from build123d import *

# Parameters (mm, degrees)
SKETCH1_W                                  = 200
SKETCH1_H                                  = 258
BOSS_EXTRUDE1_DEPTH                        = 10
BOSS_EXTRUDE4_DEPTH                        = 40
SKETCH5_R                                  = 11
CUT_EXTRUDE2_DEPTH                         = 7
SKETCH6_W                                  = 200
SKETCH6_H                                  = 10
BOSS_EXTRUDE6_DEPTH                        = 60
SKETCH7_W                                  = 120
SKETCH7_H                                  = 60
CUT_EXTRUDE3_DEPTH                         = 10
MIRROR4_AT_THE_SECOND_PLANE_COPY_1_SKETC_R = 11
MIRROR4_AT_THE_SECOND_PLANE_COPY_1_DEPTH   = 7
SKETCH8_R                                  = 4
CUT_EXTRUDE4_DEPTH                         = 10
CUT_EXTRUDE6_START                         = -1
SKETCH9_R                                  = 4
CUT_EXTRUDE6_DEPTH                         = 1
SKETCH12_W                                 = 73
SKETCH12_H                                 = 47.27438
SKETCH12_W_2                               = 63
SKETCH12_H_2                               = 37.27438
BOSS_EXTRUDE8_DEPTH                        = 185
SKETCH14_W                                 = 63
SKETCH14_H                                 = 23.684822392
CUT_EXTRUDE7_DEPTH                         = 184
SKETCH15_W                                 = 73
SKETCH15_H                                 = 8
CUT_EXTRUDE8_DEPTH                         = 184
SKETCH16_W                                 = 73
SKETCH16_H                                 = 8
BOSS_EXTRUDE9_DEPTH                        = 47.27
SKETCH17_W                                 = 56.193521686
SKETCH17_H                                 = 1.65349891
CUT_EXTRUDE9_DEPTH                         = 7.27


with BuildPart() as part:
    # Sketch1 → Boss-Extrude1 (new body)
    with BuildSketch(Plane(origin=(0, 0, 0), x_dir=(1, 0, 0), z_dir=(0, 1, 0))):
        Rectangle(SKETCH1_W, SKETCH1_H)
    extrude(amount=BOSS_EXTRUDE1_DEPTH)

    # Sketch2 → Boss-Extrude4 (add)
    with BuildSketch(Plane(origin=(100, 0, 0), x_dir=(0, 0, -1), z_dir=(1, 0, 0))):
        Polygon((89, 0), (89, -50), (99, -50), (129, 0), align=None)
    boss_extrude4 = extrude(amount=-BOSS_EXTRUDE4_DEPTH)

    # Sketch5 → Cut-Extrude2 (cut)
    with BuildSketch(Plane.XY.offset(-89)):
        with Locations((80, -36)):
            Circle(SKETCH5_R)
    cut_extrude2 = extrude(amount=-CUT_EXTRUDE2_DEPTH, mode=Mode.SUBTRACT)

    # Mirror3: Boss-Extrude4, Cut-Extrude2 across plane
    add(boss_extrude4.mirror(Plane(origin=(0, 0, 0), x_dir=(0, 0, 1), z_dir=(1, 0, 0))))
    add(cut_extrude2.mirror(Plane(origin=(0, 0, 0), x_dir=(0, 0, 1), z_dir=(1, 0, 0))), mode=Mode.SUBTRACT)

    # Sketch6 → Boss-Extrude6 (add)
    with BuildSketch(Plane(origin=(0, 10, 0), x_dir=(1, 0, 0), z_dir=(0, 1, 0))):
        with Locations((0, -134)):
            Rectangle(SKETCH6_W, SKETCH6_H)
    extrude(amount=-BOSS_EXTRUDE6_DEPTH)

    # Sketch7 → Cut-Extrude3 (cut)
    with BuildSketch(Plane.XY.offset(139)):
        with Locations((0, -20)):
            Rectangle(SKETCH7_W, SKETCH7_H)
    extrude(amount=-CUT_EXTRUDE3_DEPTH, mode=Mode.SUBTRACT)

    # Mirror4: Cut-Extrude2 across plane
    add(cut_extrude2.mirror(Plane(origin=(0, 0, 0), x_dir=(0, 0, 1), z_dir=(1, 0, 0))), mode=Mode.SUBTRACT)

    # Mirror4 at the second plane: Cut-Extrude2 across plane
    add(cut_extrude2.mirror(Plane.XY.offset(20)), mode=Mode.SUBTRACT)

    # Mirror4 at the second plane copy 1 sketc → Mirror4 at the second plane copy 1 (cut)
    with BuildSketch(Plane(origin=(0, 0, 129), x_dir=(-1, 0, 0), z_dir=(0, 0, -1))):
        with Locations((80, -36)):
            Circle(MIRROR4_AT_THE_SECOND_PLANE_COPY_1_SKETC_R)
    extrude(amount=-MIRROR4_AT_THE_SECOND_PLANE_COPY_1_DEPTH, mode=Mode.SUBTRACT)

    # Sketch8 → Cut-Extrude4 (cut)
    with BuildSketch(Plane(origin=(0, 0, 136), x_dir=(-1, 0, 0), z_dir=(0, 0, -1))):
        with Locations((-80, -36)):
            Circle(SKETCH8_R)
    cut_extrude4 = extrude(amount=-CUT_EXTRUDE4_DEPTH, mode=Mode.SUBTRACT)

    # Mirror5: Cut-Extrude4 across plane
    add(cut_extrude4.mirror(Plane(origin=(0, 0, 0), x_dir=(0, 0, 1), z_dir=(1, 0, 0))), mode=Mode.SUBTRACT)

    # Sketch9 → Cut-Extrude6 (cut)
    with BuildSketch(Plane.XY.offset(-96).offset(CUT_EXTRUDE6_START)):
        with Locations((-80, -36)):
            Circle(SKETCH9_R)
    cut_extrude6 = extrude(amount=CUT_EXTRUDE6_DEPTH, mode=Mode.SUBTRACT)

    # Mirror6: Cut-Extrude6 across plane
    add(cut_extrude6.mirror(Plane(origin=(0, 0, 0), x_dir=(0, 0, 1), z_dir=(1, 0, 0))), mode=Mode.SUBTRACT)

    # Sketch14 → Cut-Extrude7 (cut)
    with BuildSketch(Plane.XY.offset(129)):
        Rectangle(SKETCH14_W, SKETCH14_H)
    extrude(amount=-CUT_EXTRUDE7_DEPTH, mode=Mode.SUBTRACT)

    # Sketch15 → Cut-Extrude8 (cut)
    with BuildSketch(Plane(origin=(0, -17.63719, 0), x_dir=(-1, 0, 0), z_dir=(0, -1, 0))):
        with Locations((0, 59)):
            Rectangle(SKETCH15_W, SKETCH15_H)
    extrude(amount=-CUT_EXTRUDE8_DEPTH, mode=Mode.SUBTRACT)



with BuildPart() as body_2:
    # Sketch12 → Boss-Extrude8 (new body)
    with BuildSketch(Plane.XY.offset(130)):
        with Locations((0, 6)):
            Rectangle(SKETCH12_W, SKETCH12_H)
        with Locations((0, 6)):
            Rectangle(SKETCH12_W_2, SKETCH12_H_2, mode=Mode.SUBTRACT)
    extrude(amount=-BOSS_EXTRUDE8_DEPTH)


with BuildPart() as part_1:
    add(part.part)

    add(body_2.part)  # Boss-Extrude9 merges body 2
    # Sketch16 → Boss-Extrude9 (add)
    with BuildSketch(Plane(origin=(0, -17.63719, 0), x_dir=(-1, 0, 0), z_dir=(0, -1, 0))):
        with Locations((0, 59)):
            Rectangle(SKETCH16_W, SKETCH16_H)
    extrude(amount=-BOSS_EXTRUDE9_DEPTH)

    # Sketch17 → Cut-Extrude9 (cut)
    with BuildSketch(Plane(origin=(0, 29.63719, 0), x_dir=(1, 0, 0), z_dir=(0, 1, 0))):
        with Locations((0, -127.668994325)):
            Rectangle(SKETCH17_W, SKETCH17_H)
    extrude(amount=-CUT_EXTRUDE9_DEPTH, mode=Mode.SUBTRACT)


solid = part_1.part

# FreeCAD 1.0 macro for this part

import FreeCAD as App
import Part
import Sketcher

V = App.Vector
Q = App.Units.Quantity


def add_polygon(sketch, points):
    """Adds a closed chain of lines whose ends are joined by coincident constraints."""
    first, n = sketch.GeometryCount, len(points)
    for a, b in zip(points, points[1:] + points[:1]):
        sketch.addGeometry(Part.LineSegment(App.Vector(*a, 0), App.Vector(*b, 0)), False)
    for i in range(n):
        sketch.addConstraint(Sketcher.Constraint("Coincident", first + i, 2, first + (i + 1) % n, 1))

doc = App.newDocument("Part")
params = doc.addObject("Spreadsheet::Sheet", "Params")
for row, (alias, value) in enumerate([
    ("sketch1_width", "200 mm"),
    ("sketch1_height", "258 mm"),
    ("pad1_length", "10 mm"),
    ("sketch2_width", "50 mm"),
    ("sketch2_height", "10 mm"),
    ("sketch2_height2", "40 mm"),
    ("pad2_length", "40 mm"),
    ("sketch3_diameter", "22 mm"),
    ("pocket1_length", "7 mm"),
    ("sketch4_width", "200 mm"),
    ("sketch4_height", "10 mm"),
    ("pad3_length", "60 mm"),
    ("sketch5_width", "120 mm"),
    ("sketch5_height", "60 mm"),
    ("pocket2_length", "10 mm"),
    ("sketch6_diameter", "22 mm"),
    ("pocket3_length", "7 mm"),
    ("sketch7_diameter", "8 mm"),
    ("pocket4_length", "10 mm"),
    ("sketch8_diameter", "8 mm"),
    ("pocket5_length", "1 mm"),
    ("sketch9_width", "63 mm"),
    ("pocket6_length", "184 mm"),
    ("sketch10_width", "73 mm"),
    ("sketch10_height", "8 mm"),
    ("pocket7_length", "184 mm"),
    ("sketch11_width", "73 mm"),
    ("sketch11_width2", "63 mm"),
    ("pad4_length", "185 mm"),
    ("sketch12_width", "73 mm"),
    ("sketch12_height", "8 mm"),
    ("pad5_length", "47.27 mm"),
    ("pocket8_length", "7.27 mm"),
], start=1):
    params.set(f"A{row}", alias)
    params.set(f"B{row}", "=" + value)
    params.setAlias(f"B{row}", alias)

body = doc.addObject("PartDesign::Body", "Body")

sketch1 = doc.addObject("Sketcher::SketchObject", "Sketch")
body.addObject(sketch1)
sketch1.AttachmentSupport = (doc.XZ_Plane, [""])
sketch1.MapMode = "FlatFace"
add_polygon(sketch1, [(-100, -129), (-100, 129), (100, 129), (100, -129)])
sketch1.addConstraint([
    Sketcher.Constraint("Vertical", 0),
    Sketcher.Constraint("Horizontal", 1),
    Sketcher.Constraint("Vertical", 2),
    Sketcher.Constraint("Horizontal", 3),
    Sketcher.Constraint("Symmetric", 0, 2, 2, 2, -1, 1),
    Sketcher.Constraint("DistanceX", 1, 1, 1, 2, Q("200 mm")),
    Sketcher.Constraint("DistanceY", 0, 1, 0, 2, Q("258 mm")),
])
sketch1.setExpression("Constraints[9]", "Params.sketch1_width")
sketch1.setExpression("Constraints[10]", "Params.sketch1_height")
pad1 = doc.addObject("PartDesign::Pad", "Pad")
body.addObject(pad1)
pad1.Profile = sketch1
pad1.setExpression("Length", "Params.pad1_length")
pad1.Reversed = True

sketch2 = doc.addObject("Sketcher::SketchObject", "Sketch001")
body.addObject(sketch2)
sketch2.AttachmentSupport = (doc.YZ_Plane, [""])
sketch2.MapMode = "FlatFace"
sketch2.AttachmentOffset = App.Placement(V(0, 0, 100), App.Rotation())
add_polygon(sketch2, [(0, -89), (-50, -89), (-50, -99), (0, -129)])
sketch2.addConstraint([
    Sketcher.Constraint("Horizontal", 0),
    Sketcher.Constraint("Vertical", 1),
    Sketcher.Constraint("Vertical", 3),
    Sketcher.Constraint("PointOnObject", 2, 2, -2),
    Sketcher.Constraint("DistanceX", 0, 2, 0, 1, Q("50 mm")),
    Sketcher.Constraint("DistanceY", 1, 2, 1, 1, Q("10 mm")),
    Sketcher.Constraint("DistanceY", 3, 1, 3, 2, Q("40 mm")),
    Sketcher.Constraint("DistanceY", 0, 2, -1, 1, Q("89 mm")),
])
sketch2.setExpression("Constraints[8]", "Params.sketch2_width")
sketch2.setExpression("Constraints[9]", "Params.sketch2_height")
sketch2.setExpression("Constraints[10]", "Params.sketch2_height2")
pad2 = doc.addObject("PartDesign::Pad", "Pad001")
body.addObject(pad2)
pad2.Profile = sketch2
pad2.setExpression("Length", "Params.pad2_length")
pad2.Reversed = True

sketch3 = doc.addObject("Sketcher::SketchObject", "Sketch002")
body.addObject(sketch3)
sketch3.AttachmentSupport = (doc.XY_Plane, [""])
sketch3.MapMode = "FlatFace"
sketch3.AttachmentOffset = App.Placement(V(0, 0, -89), App.Rotation())
sketch3.addGeometry(Part.Circle(V(80, -36, 0), V(0, 0, 1), 11), False)
sketch3.addConstraint([
    Sketcher.Constraint("Diameter", 0, Q("22 mm")),
    Sketcher.Constraint("DistanceX", -1, 1, 0, 3, Q("80 mm")),
    Sketcher.Constraint("DistanceY", 0, 3, -1, 1, Q("36 mm")),
])
sketch3.setExpression("Constraints[0]", "Params.sketch3_diameter")
pocket1 = doc.addObject("PartDesign::Pocket", "Pocket")
body.addObject(pocket1)
pocket1.Profile = sketch3
pocket1.setExpression("Length", "Params.pocket1_length")
doc.recompute()

mirrored = doc.addObject("PartDesign::Mirrored", "Mirrored")
body.addObject(mirrored)
mirrored.Originals = [pad2, pocket1]
mirrored.MirrorPlane = (doc.YZ_Plane, [""])
body.Tip = mirrored

sketch4 = doc.addObject("Sketcher::SketchObject", "Sketch003")
body.addObject(sketch4)
sketch4.AttachmentSupport = (doc.XZ_Plane, [""])
sketch4.MapMode = "FlatFace"
sketch4.AttachmentOffset = App.Placement(V(0, 0, -10), App.Rotation())
add_polygon(sketch4, [(-100, 129), (-100, 139), (100, 139), (100, 129)])
sketch4.addConstraint([
    Sketcher.Constraint("Vertical", 0),
    Sketcher.Constraint("Horizontal", 1),
    Sketcher.Constraint("Vertical", 2),
    Sketcher.Constraint("Horizontal", 3),
    Sketcher.Constraint("DistanceX", 1, 1, 1, 2, Q("200 mm")),
    Sketcher.Constraint("DistanceY", 0, 1, 0, 2, Q("10 mm")),
    Sketcher.Constraint("DistanceX", 0, 2, -1, 1, Q("100 mm")),
    Sketcher.Constraint("DistanceY", -1, 1, 0, 2, Q("139 mm")),
])
sketch4.setExpression("Constraints[8]", "Params.sketch4_width")
sketch4.setExpression("Constraints[9]", "Params.sketch4_height")
pad3 = doc.addObject("PartDesign::Pad", "Pad002")
body.addObject(pad3)
pad3.Profile = sketch4
pad3.setExpression("Length", "Params.pad3_length")

sketch5 = doc.addObject("Sketcher::SketchObject", "Sketch004")
body.addObject(sketch5)
sketch5.AttachmentSupport = (doc.XY_Plane, [""])
sketch5.MapMode = "FlatFace"
sketch5.AttachmentOffset = App.Placement(V(0, 0, 139), App.Rotation())
add_polygon(sketch5, [(-60, 10), (-60, -50), (60, -50), (60, 10)])
sketch5.addConstraint([
    Sketcher.Constraint("Vertical", 0),
    Sketcher.Constraint("Horizontal", 1),
    Sketcher.Constraint("Vertical", 2),
    Sketcher.Constraint("Horizontal", 3),
    Sketcher.Constraint("DistanceX", 1, 1, 1, 2, Q("120 mm")),
    Sketcher.Constraint("DistanceY", 0, 2, 0, 1, Q("60 mm")),
    Sketcher.Constraint("DistanceX", 0, 2, -1, 1, Q("60 mm")),
    Sketcher.Constraint("DistanceY", 0, 2, -1, 1, Q("50 mm")),
])
sketch5.setExpression("Constraints[8]", "Params.sketch5_width")
sketch5.setExpression("Constraints[9]", "Params.sketch5_height")
pocket2 = doc.addObject("PartDesign::Pocket", "Pocket001")
body.addObject(pocket2)
pocket2.Profile = sketch5
pocket2.setExpression("Length", "Params.pocket2_length")
doc.recompute()

mirrored2 = doc.addObject("PartDesign::Mirrored", "Mirrored001")
body.addObject(mirrored2)
mirrored2.Originals = [pocket1]
mirrored2.MirrorPlane = (doc.YZ_Plane, [""])
body.Tip = mirrored2
doc.recompute()

datumplane = doc.addObject("PartDesign::Plane", "DatumPlane")
body.addObject(datumplane)
datumplane.AttachmentSupport = (doc.XY_Plane, [""])
datumplane.MapMode = "FlatFace"
datumplane.AttachmentOffset = App.Placement(V(0, 0, 20), App.Rotation())
mirrored3 = doc.addObject("PartDesign::Mirrored", "Mirrored002")
body.addObject(mirrored3)
mirrored3.Originals = [pocket1]
mirrored3.MirrorPlane = (datumplane, [""])
body.Tip = mirrored3

sketch6 = doc.addObject("Sketcher::SketchObject", "Sketch005")
body.addObject(sketch6)
sketch6.AttachmentSupport = (doc.XY_Plane, [""])
sketch6.MapMode = "FlatFace"
sketch6.AttachmentOffset = App.Placement(V(0, 0, 129), App.Rotation())
sketch6.addGeometry(Part.Circle(V(-80, -36, 0), V(0, 0, 1), 11), False)
sketch6.addConstraint([
    Sketcher.Constraint("Diameter", 0, Q("22 mm")),
    Sketcher.Constraint("DistanceX", 0, 3, -1, 1, Q("80 mm")),
    Sketcher.Constraint("DistanceY", 0, 3, -1, 1, Q("36 mm")),
])
sketch6.setExpression("Constraints[0]", "Params.sketch6_diameter")
pocket3 = doc.addObject("PartDesign::Pocket", "Pocket002")
body.addObject(pocket3)
pocket3.Profile = sketch6
pocket3.setExpression("Length", "Params.pocket3_length")
pocket3.Reversed = True

sketch7 = doc.addObject("Sketcher::SketchObject", "Sketch006")
body.addObject(sketch7)
sketch7.AttachmentSupport = (doc.XY_Plane, [""])
sketch7.MapMode = "FlatFace"
sketch7.AttachmentOffset = App.Placement(V(0, 0, 136), App.Rotation())
sketch7.addGeometry(Part.Circle(V(80, -36, 0), V(0, 0, 1), 4), False)
sketch7.addConstraint([
    Sketcher.Constraint("Diameter", 0, Q("8 mm")),
    Sketcher.Constraint("DistanceX", -1, 1, 0, 3, Q("80 mm")),
    Sketcher.Constraint("DistanceY", 0, 3, -1, 1, Q("36 mm")),
])
sketch7.setExpression("Constraints[0]", "Params.sketch7_diameter")
pocket4 = doc.addObject("PartDesign::Pocket", "Pocket003")
body.addObject(pocket4)
pocket4.Profile = sketch7
pocket4.setExpression("Length", "Params.pocket4_length")
pocket4.Reversed = True
doc.recompute()

mirrored4 = doc.addObject("PartDesign::Mirrored", "Mirrored003")
body.addObject(mirrored4)
mirrored4.Originals = [pocket4]
mirrored4.MirrorPlane = (doc.YZ_Plane, [""])
body.Tip = mirrored4

sketch8 = doc.addObject("Sketcher::SketchObject", "Sketch007")
body.addObject(sketch8)
sketch8.AttachmentSupport = (doc.XY_Plane, [""])
sketch8.MapMode = "FlatFace"
sketch8.AttachmentOffset = App.Placement(V(0, 0, -97), App.Rotation())
sketch8.addGeometry(Part.Circle(V(-80, -36, 0), V(0, 0, 1), 4), False)
sketch8.addConstraint([
    Sketcher.Constraint("Diameter", 0, Q("8 mm")),
    Sketcher.Constraint("DistanceX", 0, 3, -1, 1, Q("80 mm")),
    Sketcher.Constraint("DistanceY", 0, 3, -1, 1, Q("36 mm")),
])
sketch8.setExpression("Constraints[0]", "Params.sketch8_diameter")
pocket5 = doc.addObject("PartDesign::Pocket", "Pocket004")
body.addObject(pocket5)
pocket5.Profile = sketch8
pocket5.setExpression("Length", "Params.pocket5_length")
pocket5.Reversed = True
doc.recompute()

mirrored5 = doc.addObject("PartDesign::Mirrored", "Mirrored004")
body.addObject(mirrored5)
mirrored5.Originals = [pocket5]
mirrored5.MirrorPlane = (doc.YZ_Plane, [""])
body.Tip = mirrored5

sketch9 = doc.addObject("Sketcher::SketchObject", "Sketch008")
body.addObject(sketch9)
sketch9.AttachmentSupport = (doc.XY_Plane, [""])
sketch9.MapMode = "FlatFace"
sketch9.AttachmentOffset = App.Placement(V(0, 0, 129), App.Rotation())
add_polygon(sketch9, [(-31.5, 11.842411), (-31.5, -11.842411), (31.5, -11.842411), (31.5, 11.842411)])
sketch9.addConstraint([
    Sketcher.Constraint("Vertical", 0),
    Sketcher.Constraint("Horizontal", 1),
    Sketcher.Constraint("Vertical", 2),
    Sketcher.Constraint("Horizontal", 3),
    Sketcher.Constraint("Symmetric", 0, 2, 2, 2, -1, 1),
    Sketcher.Constraint("DistanceX", 1, 1, 1, 2, Q("63 mm")),
    Sketcher.Constraint("DistanceY", 0, 2, 0, 1, Q("23.684822 mm")),
])
sketch9.setExpression("Constraints[9]", "Params.sketch9_width")
pocket6 = doc.addObject("PartDesign::Pocket", "Pocket005")
body.addObject(pocket6)
pocket6.Profile = sketch9
pocket6.setExpression("Length", "Params.pocket6_length")

sketch10 = doc.addObject("Sketcher::SketchObject", "Sketch009")
body.addObject(sketch10)
sketch10.AttachmentSupport = (doc.XZ_Plane, [""])
sketch10.MapMode = "FlatFace"
sketch10.AttachmentOffset = App.Placement(V(0, 0, 17.63719), App.Rotation())
add_polygon(sketch10, [(36.5, -63), (36.5, -55), (-36.5, -55), (-36.5, -63)])
sketch10.addConstraint([
    Sketcher.Constraint("Vertical", 0),
    Sketcher.Constraint("Horizontal", 1),
    Sketcher.Constraint("Vertical", 2),
    Sketcher.Constraint("Horizontal", 3),
    Sketcher.Constraint("DistanceX", 1, 2, 1, 1, Q("73 mm")),
    Sketcher.Constraint("DistanceY", 0, 1, 0, 2, Q("8 mm")),
    Sketcher.Constraint("DistanceY", 0, 2, -1, 1, Q("55 mm")),
    Sketcher.Constraint("DistanceX", -1, 1, 0, 2, Q("36.5 mm")),
])
sketch10.setExpression("Constraints[8]", "Params.sketch10_width")
sketch10.setExpression("Constraints[9]", "Params.sketch10_height")
pocket7 = doc.addObject("PartDesign::Pocket", "Pocket006")
body.addObject(pocket7)
pocket7.Profile = sketch10
pocket7.setExpression("Length", "Params.pocket7_length")
body2 = doc.addObject("PartDesign::Body", "Body001")

sketch11 = doc.addObject("Sketcher::SketchObject", "Sketch010")
body2.addObject(sketch11)
sketch11.AttachmentSupport = (doc.getObject("XY_Plane001"), [""])
sketch11.MapMode = "FlatFace"
sketch11.AttachmentOffset = App.Placement(V(0, 0, 130), App.Rotation())
add_polygon(sketch11, [(-36.5, 29.63719), (-36.5, -17.63719), (36.5, -17.63719), (36.5, 29.63719)])
add_polygon(sketch11, [(31.5, -12.63719), (-31.5, -12.63719), (-31.5, 24.63719), (31.5, 24.63719)])
sketch11.addConstraint([
    Sketcher.Constraint("Vertical", 0),
    Sketcher.Constraint("Horizontal", 1),
    Sketcher.Constraint("Vertical", 2),
    Sketcher.Constraint("Horizontal", 3),
    Sketcher.Constraint("Horizontal", 4),
    Sketcher.Constraint("Vertical", 5),
    Sketcher.Constraint("Horizontal", 6),
    Sketcher.Constraint("Vertical", 7),
    Sketcher.Constraint("DistanceX", 1, 1, 1, 2, Q("73 mm")),
    Sketcher.Constraint("DistanceX", 4, 2, 4, 1, Q("63 mm")),
    Sketcher.Constraint("DistanceX", 0, 2, 4, 2, Q("5 mm")),
    Sketcher.Constraint("DistanceY", 0, 2, 4, 2, Q("5 mm")),
    Sketcher.Constraint("DistanceY", 5, 2, 3, 2, Q("5 mm")),
    Sketcher.Constraint("DistanceX", 0, 2, -1, 1, Q("36.5 mm")),
    Sketcher.Constraint("DistanceY", 0, 2, 0, 1, Q("47.27438 mm")),
    Sketcher.Constraint("DistanceY", 0, 2, -1, 1, Q("17.63719 mm")),
])
sketch11.setExpression("Constraints[16]", "Params.sketch11_width")
sketch11.setExpression("Constraints[17]", "Params.sketch11_width2")
pad4 = doc.addObject("PartDesign::Pad", "Pad003")
body2.addObject(pad4)
pad4.Profile = sketch11
pad4.setExpression("Length", "Params.pad4_length")
pad4.Reversed = True
doc.recompute()

boolean = doc.addObject("PartDesign::Boolean", "Boolean")
body.addObject(boolean)
boolean.Type = "Fuse"
boolean.addObjects([body2])

sketch12 = doc.addObject("Sketcher::SketchObject", "Sketch011")
body.addObject(sketch12)
sketch12.AttachmentSupport = (doc.XZ_Plane, [""])
sketch12.MapMode = "FlatFace"
sketch12.AttachmentOffset = App.Placement(V(0, 0, 17.63719), App.Rotation())
add_polygon(sketch12, [(36.5, -63), (36.5, -55), (-36.5, -55), (-36.5, -63)])
sketch12.addConstraint([
    Sketcher.Constraint("Vertical", 0),
    Sketcher.Constraint("Horizontal", 1),
    Sketcher.Constraint("Vertical", 2),
    Sketcher.Constraint("Horizontal", 3),
    Sketcher.Constraint("DistanceX", 1, 2, 1, 1, Q("73 mm")),
    Sketcher.Constraint("DistanceY", 0, 1, 0, 2, Q("8 mm")),
    Sketcher.Constraint("DistanceY", 0, 2, -1, 1, Q("55 mm")),
    Sketcher.Constraint("DistanceX", -1, 1, 0, 2, Q("36.5 mm")),
])
sketch12.setExpression("Constraints[8]", "Params.sketch12_width")
sketch12.setExpression("Constraints[9]", "Params.sketch12_height")
pad5 = doc.addObject("PartDesign::Pad", "Pad004")
body.addObject(pad5)
pad5.Profile = sketch12
pad5.setExpression("Length", "Params.pad5_length")
pad5.Reversed = True

sketch13 = doc.addObject("Sketcher::SketchObject", "Sketch012")
body.addObject(sketch13)
sketch13.AttachmentSupport = (doc.XZ_Plane, [""])
sketch13.MapMode = "FlatFace"
sketch13.AttachmentOffset = App.Placement(V(0, 0, -29.63719), App.Rotation())
add_polygon(sketch13, [(-28.096761, 126.842245), (-28.096761, 128.495744), (28.096761, 128.495744), (28.096761, 126.842245)])
sketch13.addConstraint([
    Sketcher.Constraint("Vertical", 0),
    Sketcher.Constraint("Horizontal", 1),
    Sketcher.Constraint("Vertical", 2),
    Sketcher.Constraint("Horizontal", 3),
    Sketcher.Constraint("DistanceY", 0, 1, 0, 2, Q("1.653499 mm")),
    Sketcher.Constraint("DistanceX", 1, 1, 1, 2, Q("56.193522 mm")),
    Sketcher.Constraint("DistanceX", 0, 2, -1, 1, Q("28.096761 mm")),
    Sketcher.Constraint("DistanceY", -1, 1, 0, 2, Q("128.495744 mm")),
])
pocket8 = doc.addObject("PartDesign::Pocket", "Pocket007")
body.addObject(pocket8)
pocket8.Profile = sketch13
pocket8.setExpression("Length", "Params.pocket8_length")
pocket8.Reversed = True

doc.recompute()
